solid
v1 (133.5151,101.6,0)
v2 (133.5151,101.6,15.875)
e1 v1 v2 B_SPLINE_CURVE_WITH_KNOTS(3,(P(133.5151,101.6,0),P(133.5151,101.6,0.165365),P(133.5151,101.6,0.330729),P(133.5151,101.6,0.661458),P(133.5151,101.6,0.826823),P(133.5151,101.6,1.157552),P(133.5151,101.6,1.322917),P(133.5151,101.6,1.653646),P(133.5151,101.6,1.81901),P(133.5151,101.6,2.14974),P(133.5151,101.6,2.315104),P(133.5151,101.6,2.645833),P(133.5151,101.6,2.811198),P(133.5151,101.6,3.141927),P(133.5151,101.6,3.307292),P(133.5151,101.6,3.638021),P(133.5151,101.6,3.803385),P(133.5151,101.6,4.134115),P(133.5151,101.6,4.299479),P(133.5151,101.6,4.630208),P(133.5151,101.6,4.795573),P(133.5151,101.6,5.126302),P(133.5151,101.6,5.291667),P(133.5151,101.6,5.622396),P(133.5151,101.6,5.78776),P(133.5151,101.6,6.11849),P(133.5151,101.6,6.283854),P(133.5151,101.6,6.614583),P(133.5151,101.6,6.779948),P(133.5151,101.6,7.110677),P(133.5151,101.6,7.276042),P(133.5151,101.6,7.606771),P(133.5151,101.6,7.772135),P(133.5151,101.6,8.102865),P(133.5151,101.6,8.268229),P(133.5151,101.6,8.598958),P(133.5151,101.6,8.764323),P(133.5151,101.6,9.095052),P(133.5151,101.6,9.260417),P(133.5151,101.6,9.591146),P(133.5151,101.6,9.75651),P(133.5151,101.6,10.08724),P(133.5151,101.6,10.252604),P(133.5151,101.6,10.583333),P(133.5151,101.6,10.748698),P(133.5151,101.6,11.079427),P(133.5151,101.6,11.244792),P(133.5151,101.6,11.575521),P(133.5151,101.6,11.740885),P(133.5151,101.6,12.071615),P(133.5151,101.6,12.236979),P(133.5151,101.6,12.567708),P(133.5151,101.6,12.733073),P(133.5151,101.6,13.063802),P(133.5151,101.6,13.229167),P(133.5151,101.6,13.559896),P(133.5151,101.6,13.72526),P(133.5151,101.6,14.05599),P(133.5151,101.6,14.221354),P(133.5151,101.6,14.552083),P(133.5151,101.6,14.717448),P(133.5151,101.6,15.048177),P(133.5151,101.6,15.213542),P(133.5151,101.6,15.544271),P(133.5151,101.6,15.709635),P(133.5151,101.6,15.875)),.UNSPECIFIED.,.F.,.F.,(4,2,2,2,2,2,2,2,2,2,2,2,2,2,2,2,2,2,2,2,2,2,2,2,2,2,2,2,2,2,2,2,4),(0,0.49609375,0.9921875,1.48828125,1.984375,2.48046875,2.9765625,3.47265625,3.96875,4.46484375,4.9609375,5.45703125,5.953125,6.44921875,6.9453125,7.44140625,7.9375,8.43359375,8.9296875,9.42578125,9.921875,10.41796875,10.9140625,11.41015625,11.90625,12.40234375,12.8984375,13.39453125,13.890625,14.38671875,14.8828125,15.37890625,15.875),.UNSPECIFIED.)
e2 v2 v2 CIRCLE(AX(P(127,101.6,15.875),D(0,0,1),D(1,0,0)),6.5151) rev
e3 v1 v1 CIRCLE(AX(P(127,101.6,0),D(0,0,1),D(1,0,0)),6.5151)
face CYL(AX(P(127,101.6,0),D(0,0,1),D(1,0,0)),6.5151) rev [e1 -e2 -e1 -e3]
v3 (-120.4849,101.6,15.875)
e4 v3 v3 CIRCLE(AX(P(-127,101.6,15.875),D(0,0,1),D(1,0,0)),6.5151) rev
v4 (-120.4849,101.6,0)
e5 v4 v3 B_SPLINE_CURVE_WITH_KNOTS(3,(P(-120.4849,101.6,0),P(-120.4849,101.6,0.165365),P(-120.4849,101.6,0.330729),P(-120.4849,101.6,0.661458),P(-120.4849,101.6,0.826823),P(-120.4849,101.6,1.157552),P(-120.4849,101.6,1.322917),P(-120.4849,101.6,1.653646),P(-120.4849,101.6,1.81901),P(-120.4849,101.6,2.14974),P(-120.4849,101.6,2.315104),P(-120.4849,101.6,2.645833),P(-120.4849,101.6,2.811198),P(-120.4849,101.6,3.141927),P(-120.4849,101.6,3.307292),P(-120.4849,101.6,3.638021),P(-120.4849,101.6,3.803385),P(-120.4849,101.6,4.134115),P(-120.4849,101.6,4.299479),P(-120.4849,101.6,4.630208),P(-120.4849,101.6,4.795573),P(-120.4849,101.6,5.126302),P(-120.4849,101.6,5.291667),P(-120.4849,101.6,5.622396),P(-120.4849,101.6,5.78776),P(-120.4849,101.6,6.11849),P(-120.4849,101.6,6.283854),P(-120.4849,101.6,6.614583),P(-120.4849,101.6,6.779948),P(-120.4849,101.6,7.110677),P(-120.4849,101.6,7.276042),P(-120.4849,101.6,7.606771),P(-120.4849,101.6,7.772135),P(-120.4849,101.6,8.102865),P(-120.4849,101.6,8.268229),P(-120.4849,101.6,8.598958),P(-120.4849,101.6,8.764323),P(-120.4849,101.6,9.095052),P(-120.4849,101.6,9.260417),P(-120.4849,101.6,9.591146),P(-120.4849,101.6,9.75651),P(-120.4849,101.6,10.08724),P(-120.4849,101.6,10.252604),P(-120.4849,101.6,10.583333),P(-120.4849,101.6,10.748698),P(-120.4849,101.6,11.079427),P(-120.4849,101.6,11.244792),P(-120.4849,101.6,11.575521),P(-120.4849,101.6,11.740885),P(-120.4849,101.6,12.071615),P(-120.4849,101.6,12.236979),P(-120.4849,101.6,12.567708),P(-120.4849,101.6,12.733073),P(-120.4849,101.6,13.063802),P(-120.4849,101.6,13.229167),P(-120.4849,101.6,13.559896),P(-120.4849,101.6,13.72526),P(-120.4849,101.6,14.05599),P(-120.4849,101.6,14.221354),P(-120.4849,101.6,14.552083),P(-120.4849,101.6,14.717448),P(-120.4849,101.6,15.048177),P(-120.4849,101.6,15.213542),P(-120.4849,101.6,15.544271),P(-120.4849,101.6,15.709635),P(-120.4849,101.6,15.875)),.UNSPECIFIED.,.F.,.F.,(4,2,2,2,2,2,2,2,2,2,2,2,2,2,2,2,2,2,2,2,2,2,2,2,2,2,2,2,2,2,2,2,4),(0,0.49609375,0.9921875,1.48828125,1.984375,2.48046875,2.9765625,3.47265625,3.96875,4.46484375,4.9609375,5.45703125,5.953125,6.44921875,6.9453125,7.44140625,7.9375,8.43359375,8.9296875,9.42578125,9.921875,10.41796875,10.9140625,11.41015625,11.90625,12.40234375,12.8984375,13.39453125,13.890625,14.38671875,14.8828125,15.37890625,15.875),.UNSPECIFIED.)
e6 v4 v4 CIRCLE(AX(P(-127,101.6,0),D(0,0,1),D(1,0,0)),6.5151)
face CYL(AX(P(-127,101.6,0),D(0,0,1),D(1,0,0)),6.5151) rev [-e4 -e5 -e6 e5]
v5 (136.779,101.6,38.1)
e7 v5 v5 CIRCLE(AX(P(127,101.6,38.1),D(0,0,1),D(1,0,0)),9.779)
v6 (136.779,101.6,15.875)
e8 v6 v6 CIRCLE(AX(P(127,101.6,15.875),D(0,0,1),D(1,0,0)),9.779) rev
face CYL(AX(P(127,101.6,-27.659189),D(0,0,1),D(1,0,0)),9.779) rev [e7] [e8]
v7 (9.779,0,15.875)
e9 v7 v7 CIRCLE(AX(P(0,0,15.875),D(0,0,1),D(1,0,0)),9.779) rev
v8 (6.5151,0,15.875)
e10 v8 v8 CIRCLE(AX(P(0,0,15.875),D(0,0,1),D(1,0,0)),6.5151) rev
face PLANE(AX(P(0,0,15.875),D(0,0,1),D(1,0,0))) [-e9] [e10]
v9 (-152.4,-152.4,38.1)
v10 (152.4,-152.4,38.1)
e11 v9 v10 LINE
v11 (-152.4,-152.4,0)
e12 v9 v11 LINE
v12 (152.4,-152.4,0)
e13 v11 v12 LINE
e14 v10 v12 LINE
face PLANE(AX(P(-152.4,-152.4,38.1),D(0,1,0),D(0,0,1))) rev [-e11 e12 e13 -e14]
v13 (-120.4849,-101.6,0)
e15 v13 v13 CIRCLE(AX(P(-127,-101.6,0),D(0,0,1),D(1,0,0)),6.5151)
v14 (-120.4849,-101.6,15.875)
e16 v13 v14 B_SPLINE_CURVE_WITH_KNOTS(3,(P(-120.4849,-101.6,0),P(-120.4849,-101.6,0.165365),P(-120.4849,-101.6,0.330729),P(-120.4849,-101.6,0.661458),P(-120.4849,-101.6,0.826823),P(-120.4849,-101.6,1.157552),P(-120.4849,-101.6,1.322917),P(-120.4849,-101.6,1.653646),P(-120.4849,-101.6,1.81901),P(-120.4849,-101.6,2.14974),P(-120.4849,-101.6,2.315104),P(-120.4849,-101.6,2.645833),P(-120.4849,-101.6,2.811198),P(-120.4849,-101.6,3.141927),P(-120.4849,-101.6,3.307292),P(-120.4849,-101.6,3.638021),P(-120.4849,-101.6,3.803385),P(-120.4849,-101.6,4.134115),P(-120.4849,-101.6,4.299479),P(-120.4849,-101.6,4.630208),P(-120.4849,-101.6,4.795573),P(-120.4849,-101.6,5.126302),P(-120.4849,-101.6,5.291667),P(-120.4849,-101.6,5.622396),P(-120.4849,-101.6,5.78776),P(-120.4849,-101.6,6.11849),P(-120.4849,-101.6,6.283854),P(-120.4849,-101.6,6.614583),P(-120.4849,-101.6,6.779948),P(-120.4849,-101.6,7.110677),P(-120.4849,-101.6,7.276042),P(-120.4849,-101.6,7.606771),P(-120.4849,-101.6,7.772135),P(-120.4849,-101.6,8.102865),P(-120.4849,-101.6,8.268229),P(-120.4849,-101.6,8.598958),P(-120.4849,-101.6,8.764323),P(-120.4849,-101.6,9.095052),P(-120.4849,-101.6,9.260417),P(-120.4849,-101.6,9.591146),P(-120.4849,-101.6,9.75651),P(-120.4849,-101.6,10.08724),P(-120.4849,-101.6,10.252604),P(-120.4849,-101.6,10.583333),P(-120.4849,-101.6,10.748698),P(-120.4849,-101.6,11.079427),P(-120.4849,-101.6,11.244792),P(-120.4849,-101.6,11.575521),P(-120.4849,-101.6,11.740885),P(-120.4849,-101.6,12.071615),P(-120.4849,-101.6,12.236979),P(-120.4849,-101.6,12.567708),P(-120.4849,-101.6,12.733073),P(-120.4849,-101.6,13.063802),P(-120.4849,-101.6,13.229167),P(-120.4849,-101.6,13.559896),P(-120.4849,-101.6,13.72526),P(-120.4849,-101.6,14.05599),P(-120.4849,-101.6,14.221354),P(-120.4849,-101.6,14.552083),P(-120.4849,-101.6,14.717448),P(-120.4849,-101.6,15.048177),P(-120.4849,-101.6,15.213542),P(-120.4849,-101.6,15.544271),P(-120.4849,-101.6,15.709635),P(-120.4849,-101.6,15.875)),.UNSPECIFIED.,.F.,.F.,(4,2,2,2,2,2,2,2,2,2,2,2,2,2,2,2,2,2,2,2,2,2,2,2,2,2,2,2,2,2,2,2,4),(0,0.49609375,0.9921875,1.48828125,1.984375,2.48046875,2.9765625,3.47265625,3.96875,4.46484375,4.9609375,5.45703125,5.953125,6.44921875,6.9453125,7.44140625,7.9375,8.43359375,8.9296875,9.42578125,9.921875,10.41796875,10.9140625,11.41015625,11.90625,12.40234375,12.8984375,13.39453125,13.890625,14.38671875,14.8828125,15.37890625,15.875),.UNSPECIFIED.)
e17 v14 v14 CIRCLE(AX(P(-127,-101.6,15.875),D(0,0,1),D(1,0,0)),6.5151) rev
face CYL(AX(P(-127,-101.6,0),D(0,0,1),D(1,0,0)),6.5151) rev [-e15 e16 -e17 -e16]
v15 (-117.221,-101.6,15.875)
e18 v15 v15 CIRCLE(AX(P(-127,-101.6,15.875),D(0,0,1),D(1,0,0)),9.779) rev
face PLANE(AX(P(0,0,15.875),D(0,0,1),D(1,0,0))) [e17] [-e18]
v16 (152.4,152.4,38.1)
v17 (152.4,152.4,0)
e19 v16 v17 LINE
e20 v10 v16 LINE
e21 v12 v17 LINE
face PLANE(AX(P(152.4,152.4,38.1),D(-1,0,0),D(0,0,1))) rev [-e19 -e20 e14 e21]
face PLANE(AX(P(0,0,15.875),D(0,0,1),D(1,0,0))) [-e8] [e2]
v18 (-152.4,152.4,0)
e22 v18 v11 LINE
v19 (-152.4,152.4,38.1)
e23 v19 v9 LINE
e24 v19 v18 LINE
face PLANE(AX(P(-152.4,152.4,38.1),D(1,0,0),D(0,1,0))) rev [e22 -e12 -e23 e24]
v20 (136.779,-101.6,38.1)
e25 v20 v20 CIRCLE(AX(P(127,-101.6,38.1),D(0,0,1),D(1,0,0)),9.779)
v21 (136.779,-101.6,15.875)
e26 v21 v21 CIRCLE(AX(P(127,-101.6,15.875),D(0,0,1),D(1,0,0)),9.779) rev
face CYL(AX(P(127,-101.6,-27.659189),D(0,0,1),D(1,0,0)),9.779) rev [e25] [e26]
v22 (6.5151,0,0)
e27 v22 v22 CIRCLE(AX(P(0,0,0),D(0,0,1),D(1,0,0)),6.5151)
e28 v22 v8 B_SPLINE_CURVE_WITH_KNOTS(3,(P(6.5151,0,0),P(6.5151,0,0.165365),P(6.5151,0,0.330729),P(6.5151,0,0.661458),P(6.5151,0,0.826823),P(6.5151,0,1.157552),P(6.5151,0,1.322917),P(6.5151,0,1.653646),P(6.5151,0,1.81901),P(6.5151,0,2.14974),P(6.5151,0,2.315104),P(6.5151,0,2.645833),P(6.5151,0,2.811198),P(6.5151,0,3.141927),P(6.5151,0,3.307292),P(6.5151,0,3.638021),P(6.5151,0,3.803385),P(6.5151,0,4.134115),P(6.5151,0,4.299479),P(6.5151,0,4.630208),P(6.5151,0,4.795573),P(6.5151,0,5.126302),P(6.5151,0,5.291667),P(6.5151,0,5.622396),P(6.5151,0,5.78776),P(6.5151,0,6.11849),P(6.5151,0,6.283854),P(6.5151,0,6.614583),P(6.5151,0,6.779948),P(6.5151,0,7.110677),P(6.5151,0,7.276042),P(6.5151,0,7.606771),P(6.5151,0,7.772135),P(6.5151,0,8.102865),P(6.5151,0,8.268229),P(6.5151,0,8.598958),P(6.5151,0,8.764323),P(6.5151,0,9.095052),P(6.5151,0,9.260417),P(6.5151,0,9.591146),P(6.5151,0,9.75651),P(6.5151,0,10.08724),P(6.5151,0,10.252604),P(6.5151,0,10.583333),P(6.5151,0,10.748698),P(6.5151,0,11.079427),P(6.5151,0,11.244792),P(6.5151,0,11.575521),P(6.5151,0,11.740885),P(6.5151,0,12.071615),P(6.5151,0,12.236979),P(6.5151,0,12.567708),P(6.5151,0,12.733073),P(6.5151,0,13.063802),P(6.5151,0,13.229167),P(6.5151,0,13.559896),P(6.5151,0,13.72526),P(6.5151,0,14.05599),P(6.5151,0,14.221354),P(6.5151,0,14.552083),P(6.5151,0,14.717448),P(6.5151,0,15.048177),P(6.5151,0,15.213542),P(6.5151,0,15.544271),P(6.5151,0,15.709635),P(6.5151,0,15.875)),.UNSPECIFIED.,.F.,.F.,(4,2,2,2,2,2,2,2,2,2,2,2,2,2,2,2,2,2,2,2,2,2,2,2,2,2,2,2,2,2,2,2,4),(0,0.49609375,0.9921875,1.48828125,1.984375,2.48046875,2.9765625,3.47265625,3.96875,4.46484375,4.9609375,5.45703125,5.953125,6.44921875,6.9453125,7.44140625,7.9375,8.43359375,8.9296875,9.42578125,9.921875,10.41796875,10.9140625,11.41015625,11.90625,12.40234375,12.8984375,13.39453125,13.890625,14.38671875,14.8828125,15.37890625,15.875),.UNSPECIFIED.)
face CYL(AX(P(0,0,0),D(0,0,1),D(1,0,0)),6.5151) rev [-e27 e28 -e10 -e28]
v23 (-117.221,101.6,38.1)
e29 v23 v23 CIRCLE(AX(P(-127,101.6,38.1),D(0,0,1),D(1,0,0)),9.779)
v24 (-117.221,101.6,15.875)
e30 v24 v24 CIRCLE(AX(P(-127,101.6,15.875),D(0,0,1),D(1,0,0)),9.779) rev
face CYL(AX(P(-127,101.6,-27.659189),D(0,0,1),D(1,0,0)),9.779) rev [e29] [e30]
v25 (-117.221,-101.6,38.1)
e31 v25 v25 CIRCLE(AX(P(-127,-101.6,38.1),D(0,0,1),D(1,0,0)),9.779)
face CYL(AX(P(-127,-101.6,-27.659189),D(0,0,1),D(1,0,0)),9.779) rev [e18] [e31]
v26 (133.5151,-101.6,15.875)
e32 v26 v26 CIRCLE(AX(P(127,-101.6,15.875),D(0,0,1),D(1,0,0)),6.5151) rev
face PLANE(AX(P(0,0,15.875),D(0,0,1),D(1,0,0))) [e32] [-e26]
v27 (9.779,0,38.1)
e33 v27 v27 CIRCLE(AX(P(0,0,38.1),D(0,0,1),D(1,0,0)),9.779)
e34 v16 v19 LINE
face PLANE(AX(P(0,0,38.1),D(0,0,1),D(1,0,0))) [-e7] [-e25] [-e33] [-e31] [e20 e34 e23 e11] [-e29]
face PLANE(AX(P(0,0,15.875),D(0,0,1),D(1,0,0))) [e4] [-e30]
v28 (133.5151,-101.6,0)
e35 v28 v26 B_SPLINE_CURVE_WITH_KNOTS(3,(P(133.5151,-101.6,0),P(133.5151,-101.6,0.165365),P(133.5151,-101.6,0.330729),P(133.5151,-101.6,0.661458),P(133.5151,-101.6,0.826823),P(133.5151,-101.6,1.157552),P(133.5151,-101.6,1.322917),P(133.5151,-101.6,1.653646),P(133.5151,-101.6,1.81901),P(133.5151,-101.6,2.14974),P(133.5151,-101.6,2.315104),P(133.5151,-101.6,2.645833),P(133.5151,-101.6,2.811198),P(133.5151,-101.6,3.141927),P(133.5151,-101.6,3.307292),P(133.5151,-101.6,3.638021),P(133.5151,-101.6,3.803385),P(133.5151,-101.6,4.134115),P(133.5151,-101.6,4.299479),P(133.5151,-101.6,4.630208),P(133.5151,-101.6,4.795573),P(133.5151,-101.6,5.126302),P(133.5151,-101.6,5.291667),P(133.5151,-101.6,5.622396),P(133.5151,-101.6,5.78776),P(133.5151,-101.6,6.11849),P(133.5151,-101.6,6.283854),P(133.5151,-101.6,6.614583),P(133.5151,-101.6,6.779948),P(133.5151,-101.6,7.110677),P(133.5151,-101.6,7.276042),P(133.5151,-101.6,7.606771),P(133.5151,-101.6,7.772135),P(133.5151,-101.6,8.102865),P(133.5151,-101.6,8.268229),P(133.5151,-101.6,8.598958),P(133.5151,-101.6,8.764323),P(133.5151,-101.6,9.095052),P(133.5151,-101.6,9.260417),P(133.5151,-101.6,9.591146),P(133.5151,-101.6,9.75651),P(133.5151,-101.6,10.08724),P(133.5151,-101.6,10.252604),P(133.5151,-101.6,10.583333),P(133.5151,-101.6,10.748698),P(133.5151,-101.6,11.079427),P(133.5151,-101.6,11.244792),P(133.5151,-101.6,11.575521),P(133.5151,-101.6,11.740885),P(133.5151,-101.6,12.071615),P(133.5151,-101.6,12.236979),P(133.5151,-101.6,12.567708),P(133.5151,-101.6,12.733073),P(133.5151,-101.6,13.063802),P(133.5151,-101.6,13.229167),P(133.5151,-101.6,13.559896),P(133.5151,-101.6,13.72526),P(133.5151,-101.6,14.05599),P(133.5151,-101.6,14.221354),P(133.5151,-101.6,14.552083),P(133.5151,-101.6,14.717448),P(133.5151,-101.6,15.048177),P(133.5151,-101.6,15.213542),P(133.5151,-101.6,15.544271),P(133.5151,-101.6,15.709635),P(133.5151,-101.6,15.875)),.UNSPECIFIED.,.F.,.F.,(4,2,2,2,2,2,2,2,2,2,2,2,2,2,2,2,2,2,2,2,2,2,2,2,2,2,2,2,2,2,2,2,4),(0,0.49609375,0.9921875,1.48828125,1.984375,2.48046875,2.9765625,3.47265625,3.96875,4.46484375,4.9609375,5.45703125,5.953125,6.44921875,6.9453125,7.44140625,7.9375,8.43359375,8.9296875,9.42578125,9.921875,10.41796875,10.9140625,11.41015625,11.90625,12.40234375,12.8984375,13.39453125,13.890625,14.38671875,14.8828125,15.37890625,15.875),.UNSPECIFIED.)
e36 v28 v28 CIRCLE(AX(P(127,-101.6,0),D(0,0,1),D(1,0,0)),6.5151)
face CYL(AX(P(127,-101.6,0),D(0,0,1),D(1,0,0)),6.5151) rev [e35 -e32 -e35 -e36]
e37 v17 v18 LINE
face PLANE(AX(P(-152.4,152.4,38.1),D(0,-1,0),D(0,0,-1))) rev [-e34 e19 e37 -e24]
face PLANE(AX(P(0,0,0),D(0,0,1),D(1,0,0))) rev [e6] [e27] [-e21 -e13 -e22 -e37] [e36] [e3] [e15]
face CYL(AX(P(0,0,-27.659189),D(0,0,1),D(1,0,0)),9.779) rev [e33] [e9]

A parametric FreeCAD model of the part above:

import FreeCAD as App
import Part
import Sketcher

V = App.Vector
Q = App.Units.Quantity

doc = App.newDocument("Part")
body = doc.addObject("PartDesign::Body", "Body")

sketch1 = body.newObject("Sketcher::SketchObject", "Sketch")
sketch1.AttachmentSupport = (doc.getObject("XY_Plane"), [""])
sketch1.MapMode = "FlatFace"
sketch1.addGeometry([
    Part.LineSegment(V(-152, 152, 0), V(-152, -152, 0)),
    Part.LineSegment(V(-152, -152, 0), V(152, -152, 0)),
    Part.LineSegment(V(152, -152, 0), V(152, 152, 0)),
    Part.LineSegment(V(152, 152, 0), V(-152, 152, 0)),
], False)
sketch1.addConstraint([
    Sketcher.Constraint("Coincident", 0, 2, 1, 1),
    Sketcher.Constraint("Coincident", 1, 2, 2, 1),
    Sketcher.Constraint("Coincident", 2, 2, 3, 1),
    Sketcher.Constraint("Coincident", 3, 2, 0, 1),
    Sketcher.Constraint("Vertical", 0),
    Sketcher.Constraint("Horizontal", 1),
    Sketcher.Constraint("Vertical", 2),
    Sketcher.Constraint("Horizontal", 3),
    Sketcher.Constraint("Symmetric", 0, 2, 2, 2, -1, 1),
    Sketcher.Constraint("Equal", 3, 0),
    Sketcher.Constraint("DistanceX", 1, 1, 1, 2, Q("12 in")),
])
pad1 = body.newObject("PartDesign::Pad", "Pad")
pad1.Profile = sketch1
pad1.Length = Q("1.5 in")

sketch2 = body.newObject("Sketcher::SketchObject", "Sketch001")
sketch2.AttachmentSupport = (doc.getObject("XY_Plane"), [""])
sketch2.MapMode = "FlatFace"
sketch2.AttachmentOffset = App.Placement(V(0, 0, 1.5 * 25.4), App.Rotation())
sketch2.addGeometry([
    Part.Circle(V(-127, 102, 0), V(0, 0, 1), 7),
    Part.Circle(V(127, 102, 0), V(0, 0, 1), 7),
    Part.Circle(V(127, -102, 0), V(0, 0, 1), 7),
    Part.Circle(V(-127, -102, 0), V(0, 0, 1), 7),
    Part.Circle(V(0, 0, 0), V(0, 0, 1), 7),
], False)
sketch2.addConstraint([
    Sketcher.Constraint("Coincident", 4, 3, -1, 1),
    Sketcher.Constraint("Equal", 0, 1),
    Sketcher.Constraint("Equal", 1, 2),
    Sketcher.Constraint("Equal", 2, 3),
    Sketcher.Constraint("Equal", 3, 4),
    Sketcher.Constraint("Symmetric", 0, 3, 2, 3, -1, 1),
    Sketcher.Constraint("Symmetric", 1, 3, 3, 3, -1, 1),
    Sketcher.Constraint("Symmetric", 0, 3, 1, 3, -2),
    Sketcher.Constraint("Diameter", 0, Q("0.513 in")),
    Sketcher.Constraint("DistanceX", 0, 3, -1, 1, Q("5 in")),
    Sketcher.Constraint("DistanceY", -1, 1, 0, 3, Q("4 in")),
])
pocket1 = body.newObject("PartDesign::Pocket", "Pocket")
pocket1.Profile = sketch2
pocket1.Type = "ThroughAll"

sketch3 = body.newObject("Sketcher::SketchObject", "Sketch002")
sketch3.AttachmentSupport = (doc.getObject("XY_Plane"), [""])
sketch3.MapMode = "FlatFace"
sketch3.AttachmentOffset = App.Placement(V(0, 0, 1.5 * 25.4), App.Rotation())
sketch3.addGeometry([
    Part.Circle(V(-127, 102, 0), V(0, 0, 1), 10),
    Part.Circle(V(127, 102, 0), V(0, 0, 1), 10),
    Part.Circle(V(0, 0, 0), V(0, 0, 1), 10),
    Part.Circle(V(127, -102, 0), V(0, 0, 1), 10),
    Part.Circle(V(-127, -102, 0), V(0, 0, 1), 10),
], False)
sketch3.addConstraint([
    Sketcher.Constraint("Coincident", 2, 3, -1, 1),
    Sketcher.Constraint("Equal", 0, 1),
    Sketcher.Constraint("Equal", 1, 2),
    Sketcher.Constraint("Equal", 2, 3),
    Sketcher.Constraint("Equal", 3, 4),
    Sketcher.Constraint("Symmetric", 0, 3, 3, 3, -1, 1),
    Sketcher.Constraint("Symmetric", 1, 3, 4, 3, -1, 1),
    Sketcher.Constraint("Symmetric", 0, 3, 1, 3, -2),
    Sketcher.Constraint("Diameter", 0, Q("0.77 in")),
    Sketcher.Constraint("DistanceX", 0, 3, -1, 1, Q("5 in")),
    Sketcher.Constraint("DistanceY", -1, 1, 0, 3, Q("4 in")),
])
pocket2 = body.newObject("PartDesign::Pocket", "Pocket001")
pocket2.Profile = sketch3
pocket2.Length = Q("0.875 in")

doc.recompute()
